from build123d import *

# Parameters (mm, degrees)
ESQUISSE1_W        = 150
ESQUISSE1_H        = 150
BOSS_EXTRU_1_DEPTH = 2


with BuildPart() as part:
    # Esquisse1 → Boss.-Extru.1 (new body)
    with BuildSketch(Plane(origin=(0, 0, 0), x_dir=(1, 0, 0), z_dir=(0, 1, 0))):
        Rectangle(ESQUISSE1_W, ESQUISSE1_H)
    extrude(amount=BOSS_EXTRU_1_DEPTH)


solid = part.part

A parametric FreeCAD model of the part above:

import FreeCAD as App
import Part
import Sketcher

V = App.Vector
Q = App.Units.Quantity

doc = App.newDocument("Part")
params = doc.addObject("Spreadsheet::Sheet", "Params")
for row, (alias, value) in enumerate([
    ("sketch1_width", "150 mm"),
    ("pad1_length", "2 mm"),
], start=1):
    params.set(f"A{row}", alias)
    params.set(f"B{row}", "=" + value)
    params.setAlias(f"B{row}", alias)

body = doc.addObject("PartDesign::Body", "Body")

# Sketch on XZ plane
sketch1 = body.newObject("Sketcher::SketchObject", "Sketch")
sketch1.AttachmentSupport = (doc.getObject("XZ_Plane"), [""])
sketch1.MapMode = "FlatFace"
sketch1.addGeometry([
    Part.LineSegment(V(-75, -75, 0), V(-75, 75, 0)),
    Part.LineSegment(V(-75, 75, 0), V(75, 75, 0)),
    Part.LineSegment(V(75, 75, 0), V(75, -75, 0)),
    Part.LineSegment(V(75, -75, 0), V(-75, -75, 0)),
], False)
sketch1.addConstraint([
    Sketcher.Constraint("Coincident", 0, 2, 1, 1),
    Sketcher.Constraint("Coincident", 1, 2, 2, 1),
    Sketcher.Constraint("Coincident", 2, 2, 3, 1),
    Sketcher.Constraint("Coincident", 3, 2, 0, 1),
    Sketcher.Constraint("Vertical", 0),
    Sketcher.Constraint("Horizontal", 1),
    Sketcher.Constraint("Vertical", 2),
    Sketcher.Constraint("Horizontal", 3),
    Sketcher.Constraint("Symmetric", 0, 2, 2, 2, -1, 1),
    Sketcher.Constraint("Equal", 3, 0),
    Sketcher.Constraint("DistanceX", 1, 1, 1, 2, Q("150 mm")),
])
sketch1.setExpression("Constraints[10]", "Params.sketch1_width")
pad1 = body.newObject("PartDesign::Pad", "Pad")
pad1.Profile = sketch1
pad1.setExpression("Length", "Params.pad1_length")
pad1.Reversed = True

doc.recompute()
